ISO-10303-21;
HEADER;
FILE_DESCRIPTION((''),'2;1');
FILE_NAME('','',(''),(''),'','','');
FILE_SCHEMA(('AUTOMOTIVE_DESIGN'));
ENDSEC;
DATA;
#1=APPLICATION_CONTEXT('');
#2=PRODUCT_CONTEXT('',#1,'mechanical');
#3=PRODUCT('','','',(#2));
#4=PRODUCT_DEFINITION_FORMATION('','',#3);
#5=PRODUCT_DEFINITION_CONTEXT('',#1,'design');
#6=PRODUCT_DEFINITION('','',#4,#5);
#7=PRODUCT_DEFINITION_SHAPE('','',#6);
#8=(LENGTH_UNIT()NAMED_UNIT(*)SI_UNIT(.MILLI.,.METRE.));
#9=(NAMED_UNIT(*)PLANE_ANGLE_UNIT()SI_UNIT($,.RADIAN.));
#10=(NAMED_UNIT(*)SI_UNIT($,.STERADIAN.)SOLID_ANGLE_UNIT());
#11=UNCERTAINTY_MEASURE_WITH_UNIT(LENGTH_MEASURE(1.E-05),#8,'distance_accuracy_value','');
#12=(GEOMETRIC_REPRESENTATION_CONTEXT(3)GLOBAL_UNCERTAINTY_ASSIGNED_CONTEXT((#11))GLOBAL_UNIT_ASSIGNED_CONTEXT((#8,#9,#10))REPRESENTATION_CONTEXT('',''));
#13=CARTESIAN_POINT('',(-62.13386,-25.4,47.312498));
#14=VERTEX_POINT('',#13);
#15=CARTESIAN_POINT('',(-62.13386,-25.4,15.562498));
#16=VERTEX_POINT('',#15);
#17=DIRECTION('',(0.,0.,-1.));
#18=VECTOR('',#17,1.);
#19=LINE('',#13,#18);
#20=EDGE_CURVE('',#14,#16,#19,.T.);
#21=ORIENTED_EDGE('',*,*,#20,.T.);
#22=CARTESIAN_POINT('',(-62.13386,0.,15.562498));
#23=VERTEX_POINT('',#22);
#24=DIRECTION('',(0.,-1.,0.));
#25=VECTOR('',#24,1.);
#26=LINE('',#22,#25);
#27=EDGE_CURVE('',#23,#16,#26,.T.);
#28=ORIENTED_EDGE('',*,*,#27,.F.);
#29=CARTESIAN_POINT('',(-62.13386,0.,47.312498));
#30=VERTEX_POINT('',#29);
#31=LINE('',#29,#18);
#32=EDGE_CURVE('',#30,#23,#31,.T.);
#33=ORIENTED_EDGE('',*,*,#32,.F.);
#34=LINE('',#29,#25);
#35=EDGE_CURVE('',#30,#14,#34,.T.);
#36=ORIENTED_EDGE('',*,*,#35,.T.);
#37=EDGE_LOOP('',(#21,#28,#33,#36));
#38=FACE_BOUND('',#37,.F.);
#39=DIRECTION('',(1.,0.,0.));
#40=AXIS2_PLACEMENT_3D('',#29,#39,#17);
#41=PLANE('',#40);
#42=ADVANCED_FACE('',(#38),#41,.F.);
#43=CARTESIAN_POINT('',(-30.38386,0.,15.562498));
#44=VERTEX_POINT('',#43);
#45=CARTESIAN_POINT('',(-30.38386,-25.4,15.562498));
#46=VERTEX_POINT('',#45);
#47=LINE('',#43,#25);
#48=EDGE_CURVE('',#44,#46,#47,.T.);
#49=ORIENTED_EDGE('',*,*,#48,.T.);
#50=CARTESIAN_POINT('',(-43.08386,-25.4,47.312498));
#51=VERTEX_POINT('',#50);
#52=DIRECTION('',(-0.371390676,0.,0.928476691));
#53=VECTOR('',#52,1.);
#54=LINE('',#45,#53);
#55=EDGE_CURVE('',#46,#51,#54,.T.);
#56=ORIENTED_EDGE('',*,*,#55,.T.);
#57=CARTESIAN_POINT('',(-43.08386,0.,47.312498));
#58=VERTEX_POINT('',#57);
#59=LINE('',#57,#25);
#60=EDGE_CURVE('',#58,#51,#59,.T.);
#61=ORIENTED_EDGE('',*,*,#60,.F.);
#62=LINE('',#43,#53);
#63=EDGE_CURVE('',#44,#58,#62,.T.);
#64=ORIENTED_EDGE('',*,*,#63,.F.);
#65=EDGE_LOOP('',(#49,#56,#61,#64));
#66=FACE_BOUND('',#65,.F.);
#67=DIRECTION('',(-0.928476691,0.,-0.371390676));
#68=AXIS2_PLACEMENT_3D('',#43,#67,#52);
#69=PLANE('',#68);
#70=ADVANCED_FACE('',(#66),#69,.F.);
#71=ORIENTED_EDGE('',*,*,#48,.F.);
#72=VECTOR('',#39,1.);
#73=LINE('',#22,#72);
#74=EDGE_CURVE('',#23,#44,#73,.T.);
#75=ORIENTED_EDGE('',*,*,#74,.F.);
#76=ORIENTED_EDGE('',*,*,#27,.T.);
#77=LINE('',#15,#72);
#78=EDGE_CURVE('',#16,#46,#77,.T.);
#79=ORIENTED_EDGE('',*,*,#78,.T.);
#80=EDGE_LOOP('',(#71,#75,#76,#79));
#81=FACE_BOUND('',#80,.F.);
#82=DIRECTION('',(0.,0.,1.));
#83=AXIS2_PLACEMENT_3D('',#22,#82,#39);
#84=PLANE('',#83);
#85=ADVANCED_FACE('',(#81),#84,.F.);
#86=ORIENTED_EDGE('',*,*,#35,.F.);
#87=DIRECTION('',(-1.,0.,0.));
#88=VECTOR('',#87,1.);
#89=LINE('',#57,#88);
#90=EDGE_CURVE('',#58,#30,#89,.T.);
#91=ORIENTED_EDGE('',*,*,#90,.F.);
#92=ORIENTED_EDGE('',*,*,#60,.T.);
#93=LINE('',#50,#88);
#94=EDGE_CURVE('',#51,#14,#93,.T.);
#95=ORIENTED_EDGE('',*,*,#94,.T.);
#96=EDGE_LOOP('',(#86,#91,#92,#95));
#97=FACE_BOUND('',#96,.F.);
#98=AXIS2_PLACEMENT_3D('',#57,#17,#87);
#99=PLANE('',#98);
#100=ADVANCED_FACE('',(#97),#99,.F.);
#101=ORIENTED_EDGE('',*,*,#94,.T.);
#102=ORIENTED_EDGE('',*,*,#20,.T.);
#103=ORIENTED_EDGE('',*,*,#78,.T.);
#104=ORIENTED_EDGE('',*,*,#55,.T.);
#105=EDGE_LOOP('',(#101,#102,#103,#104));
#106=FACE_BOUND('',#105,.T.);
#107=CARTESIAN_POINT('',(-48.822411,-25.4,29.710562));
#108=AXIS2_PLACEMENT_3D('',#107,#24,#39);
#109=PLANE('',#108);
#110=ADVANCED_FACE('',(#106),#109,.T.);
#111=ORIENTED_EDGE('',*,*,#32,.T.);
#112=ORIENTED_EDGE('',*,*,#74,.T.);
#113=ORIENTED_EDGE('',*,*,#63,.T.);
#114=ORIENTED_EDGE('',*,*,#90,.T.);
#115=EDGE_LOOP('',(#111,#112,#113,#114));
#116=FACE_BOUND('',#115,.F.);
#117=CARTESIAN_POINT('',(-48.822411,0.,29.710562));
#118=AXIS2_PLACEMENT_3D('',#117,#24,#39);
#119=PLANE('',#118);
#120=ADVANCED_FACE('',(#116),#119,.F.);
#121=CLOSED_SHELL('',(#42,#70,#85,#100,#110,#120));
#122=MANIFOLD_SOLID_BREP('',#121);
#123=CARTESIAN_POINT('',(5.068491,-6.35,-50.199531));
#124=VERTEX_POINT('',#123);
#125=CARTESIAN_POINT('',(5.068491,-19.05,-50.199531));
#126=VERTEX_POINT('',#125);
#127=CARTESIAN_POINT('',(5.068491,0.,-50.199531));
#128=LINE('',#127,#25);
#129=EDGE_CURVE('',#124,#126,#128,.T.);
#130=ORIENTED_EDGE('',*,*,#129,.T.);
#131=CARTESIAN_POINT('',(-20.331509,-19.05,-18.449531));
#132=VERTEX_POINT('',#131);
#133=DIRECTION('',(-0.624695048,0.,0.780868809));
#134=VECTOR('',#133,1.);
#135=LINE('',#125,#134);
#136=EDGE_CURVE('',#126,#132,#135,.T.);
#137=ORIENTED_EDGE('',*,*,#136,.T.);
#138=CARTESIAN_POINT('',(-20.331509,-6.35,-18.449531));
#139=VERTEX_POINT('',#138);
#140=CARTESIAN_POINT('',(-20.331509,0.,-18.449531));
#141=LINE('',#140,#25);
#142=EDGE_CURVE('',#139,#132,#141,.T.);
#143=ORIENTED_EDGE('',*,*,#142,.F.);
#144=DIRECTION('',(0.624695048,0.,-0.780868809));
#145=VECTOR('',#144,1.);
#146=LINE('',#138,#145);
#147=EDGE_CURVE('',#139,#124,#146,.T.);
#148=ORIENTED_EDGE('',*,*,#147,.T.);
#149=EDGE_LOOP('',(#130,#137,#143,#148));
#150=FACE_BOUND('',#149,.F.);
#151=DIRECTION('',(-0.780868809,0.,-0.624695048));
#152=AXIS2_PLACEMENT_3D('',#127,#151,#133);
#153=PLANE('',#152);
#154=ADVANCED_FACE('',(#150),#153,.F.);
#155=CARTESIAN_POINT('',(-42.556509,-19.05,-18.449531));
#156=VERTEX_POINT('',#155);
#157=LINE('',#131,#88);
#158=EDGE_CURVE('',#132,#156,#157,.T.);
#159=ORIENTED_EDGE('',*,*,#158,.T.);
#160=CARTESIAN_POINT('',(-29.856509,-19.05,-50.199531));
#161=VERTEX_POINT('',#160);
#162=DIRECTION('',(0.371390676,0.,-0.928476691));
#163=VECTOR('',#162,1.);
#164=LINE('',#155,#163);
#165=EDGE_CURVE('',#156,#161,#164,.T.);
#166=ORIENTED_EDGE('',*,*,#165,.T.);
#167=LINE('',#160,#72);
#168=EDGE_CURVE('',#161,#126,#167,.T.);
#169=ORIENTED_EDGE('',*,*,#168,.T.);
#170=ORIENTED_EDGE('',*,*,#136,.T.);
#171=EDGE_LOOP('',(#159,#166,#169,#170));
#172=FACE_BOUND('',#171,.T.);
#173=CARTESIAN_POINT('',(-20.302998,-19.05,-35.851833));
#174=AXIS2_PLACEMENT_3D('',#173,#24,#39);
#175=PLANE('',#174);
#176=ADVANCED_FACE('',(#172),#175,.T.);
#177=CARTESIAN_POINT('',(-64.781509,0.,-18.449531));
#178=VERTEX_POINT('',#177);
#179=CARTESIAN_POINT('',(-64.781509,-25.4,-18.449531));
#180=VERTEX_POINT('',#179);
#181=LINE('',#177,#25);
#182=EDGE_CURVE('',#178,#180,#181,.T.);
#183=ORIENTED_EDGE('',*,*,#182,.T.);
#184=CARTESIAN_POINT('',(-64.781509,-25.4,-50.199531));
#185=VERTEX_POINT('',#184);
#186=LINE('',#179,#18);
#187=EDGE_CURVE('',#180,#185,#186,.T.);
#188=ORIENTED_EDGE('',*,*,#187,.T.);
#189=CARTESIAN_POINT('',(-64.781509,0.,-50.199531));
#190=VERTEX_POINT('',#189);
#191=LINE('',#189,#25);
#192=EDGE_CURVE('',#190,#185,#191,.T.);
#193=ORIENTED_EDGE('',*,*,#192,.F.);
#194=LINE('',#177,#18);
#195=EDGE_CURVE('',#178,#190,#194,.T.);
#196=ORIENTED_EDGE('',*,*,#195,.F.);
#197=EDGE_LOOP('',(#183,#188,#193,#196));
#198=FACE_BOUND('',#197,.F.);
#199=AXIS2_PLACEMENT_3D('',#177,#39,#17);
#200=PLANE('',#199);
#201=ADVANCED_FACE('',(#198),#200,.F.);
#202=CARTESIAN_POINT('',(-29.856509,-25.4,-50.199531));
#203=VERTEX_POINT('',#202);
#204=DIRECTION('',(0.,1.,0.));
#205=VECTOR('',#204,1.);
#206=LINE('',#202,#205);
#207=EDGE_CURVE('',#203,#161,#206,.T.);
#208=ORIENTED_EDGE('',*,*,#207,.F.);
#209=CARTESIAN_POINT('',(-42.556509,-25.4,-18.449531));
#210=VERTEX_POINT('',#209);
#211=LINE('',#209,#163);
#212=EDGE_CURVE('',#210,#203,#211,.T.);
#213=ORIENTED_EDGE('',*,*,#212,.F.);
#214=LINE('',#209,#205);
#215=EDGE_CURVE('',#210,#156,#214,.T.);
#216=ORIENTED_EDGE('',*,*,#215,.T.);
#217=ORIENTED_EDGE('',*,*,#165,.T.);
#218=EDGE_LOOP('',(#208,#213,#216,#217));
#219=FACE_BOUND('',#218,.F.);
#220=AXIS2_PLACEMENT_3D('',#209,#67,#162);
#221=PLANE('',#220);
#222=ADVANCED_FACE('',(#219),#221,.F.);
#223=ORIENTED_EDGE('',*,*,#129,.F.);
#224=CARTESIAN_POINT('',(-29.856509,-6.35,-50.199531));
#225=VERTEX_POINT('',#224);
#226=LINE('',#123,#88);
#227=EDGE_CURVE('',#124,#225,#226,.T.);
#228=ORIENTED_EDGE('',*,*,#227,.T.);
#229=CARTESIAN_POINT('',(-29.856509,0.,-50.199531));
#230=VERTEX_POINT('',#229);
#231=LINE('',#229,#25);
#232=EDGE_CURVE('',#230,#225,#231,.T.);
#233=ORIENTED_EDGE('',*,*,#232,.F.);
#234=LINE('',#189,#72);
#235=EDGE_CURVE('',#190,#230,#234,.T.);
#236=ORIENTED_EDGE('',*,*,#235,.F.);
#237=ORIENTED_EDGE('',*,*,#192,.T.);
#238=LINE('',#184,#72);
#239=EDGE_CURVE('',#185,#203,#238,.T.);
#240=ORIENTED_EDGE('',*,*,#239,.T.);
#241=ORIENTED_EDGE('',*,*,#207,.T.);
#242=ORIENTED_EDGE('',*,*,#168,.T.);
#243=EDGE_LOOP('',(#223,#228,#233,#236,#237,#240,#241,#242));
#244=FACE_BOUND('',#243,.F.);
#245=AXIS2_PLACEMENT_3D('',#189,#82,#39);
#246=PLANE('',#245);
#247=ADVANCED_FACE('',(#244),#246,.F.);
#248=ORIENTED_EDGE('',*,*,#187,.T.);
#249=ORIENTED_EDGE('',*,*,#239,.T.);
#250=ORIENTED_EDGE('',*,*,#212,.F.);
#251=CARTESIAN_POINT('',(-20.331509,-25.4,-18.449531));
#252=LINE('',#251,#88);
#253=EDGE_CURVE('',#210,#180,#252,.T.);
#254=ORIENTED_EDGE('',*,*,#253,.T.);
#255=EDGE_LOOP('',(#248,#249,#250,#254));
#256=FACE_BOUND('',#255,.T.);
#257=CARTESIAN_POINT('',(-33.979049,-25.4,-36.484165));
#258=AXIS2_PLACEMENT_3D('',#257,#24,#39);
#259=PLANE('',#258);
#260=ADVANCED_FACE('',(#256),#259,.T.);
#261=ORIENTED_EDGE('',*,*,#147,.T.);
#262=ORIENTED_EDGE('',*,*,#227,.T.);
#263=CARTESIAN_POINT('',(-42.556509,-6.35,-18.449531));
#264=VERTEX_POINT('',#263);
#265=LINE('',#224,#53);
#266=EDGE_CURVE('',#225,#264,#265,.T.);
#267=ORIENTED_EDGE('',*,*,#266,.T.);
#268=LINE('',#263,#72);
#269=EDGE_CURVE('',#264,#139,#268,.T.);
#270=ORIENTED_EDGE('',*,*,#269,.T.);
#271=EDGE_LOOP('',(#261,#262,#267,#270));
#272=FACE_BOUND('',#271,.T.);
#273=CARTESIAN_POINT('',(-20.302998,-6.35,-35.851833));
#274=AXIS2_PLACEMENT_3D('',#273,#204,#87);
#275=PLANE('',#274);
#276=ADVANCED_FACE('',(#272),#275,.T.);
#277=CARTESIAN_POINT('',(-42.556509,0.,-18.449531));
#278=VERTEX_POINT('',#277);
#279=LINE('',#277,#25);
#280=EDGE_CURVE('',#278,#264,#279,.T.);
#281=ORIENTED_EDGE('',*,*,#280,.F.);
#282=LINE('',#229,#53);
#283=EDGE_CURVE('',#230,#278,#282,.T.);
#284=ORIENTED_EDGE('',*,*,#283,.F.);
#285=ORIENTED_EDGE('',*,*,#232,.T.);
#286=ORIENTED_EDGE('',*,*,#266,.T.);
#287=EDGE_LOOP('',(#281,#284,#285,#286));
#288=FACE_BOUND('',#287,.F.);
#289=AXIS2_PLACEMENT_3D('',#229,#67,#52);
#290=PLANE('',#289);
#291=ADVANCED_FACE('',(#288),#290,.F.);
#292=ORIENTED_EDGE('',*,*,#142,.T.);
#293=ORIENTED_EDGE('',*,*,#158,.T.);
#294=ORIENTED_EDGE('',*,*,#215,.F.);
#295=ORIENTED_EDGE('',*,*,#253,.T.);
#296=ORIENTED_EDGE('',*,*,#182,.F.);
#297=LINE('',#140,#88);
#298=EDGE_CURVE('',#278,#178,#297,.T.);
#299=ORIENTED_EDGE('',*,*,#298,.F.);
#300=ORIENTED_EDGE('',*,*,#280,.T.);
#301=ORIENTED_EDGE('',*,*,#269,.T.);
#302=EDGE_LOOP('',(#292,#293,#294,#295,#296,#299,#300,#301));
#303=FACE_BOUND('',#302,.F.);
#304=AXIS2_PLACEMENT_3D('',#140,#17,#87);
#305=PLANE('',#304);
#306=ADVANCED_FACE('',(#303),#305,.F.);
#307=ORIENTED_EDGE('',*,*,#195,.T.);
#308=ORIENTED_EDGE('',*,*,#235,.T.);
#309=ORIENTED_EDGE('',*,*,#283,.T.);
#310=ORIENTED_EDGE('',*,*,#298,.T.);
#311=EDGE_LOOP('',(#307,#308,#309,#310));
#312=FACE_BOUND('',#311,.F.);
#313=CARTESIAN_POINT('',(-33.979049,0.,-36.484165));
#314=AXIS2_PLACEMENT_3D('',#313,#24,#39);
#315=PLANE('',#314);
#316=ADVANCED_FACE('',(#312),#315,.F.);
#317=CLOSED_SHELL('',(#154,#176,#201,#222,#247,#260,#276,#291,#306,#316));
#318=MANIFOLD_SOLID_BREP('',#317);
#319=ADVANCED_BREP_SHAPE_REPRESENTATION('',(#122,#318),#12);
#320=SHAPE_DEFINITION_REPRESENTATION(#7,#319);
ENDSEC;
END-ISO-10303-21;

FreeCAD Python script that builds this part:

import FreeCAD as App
import Part
import Sketcher
Q = App.Units.Quantity

doc = App.newDocument("Part")
body = doc.addObject("PartDesign::Body", "Body")

# Sketch on XZ plane
sketch1 = body.newObject("Sketcher::SketchObject", "Sketch")
sketch1.AttachmentSupport = (doc.getObject("XZ_Plane"), [""])
sketch1.MapMode = "FlatFace"
sketch1.addGeometry([
    Part.LineSegment(App.Vector(-43.08386, 47.312498, 0), App.Vector(-62.13386, 47.312498, 0)),
    Part.LineSegment(App.Vector(-62.13386, 47.312498, 0), App.Vector(-62.13386, 15.562498, 0)),
    Part.LineSegment(App.Vector(-62.13386, 15.562498, 0), App.Vector(-30.38386, 15.562498, 0)),
    Part.LineSegment(App.Vector(-30.38386, 15.562498, 0), App.Vector(-43.08386, 47.312498, 0)),
], False)
sketch1.addConstraint([
    Sketcher.Constraint("Coincident", 0, 2, 1, 1),
    Sketcher.Constraint("Coincident", 1, 2, 2, 1),
    Sketcher.Constraint("Coincident", 2, 2, 3, 1),
    Sketcher.Constraint("Coincident", 3, 2, 0, 1),
    Sketcher.Constraint("Horizontal", 0),
    Sketcher.Constraint("Vertical", 1),
    Sketcher.Constraint("Horizontal", 2),
    Sketcher.Constraint("Equal", 2, 1),
    Sketcher.Constraint("DistanceX", 0, 2, 0, 1, Q("0.75 in")),
    Sketcher.Constraint("DistanceX", 2, 1, 2, 2, Q("1.25 in")),
    Sketcher.Constraint("DistanceX", 0, 2, -1, 1, 62.13386),
    Sketcher.Constraint("DistanceY", -1, 1, 0, 2, 47.312498),
])
pad1 = body.newObject("PartDesign::Pad", "Pad")
pad1.Profile = sketch1
pad1.Length = Q("1 in")
body2 = doc.addObject("PartDesign::Body", "Body001")

# Sketch on XZ plane
sketch2 = body2.newObject("Sketcher::SketchObject", "Sketch001")
sketch2.AttachmentSupport = (doc.getObject("XZ_Plane001"), [""])
sketch2.MapMode = "FlatFace"
sketch2.addGeometry([
    Part.LineSegment(App.Vector(-20.331509, -18.449531, 0), App.Vector(-64.781509, -18.449531, 0)),
    Part.LineSegment(App.Vector(-64.781509, -18.449531, 0), App.Vector(-64.781509, -50.199531, 0)),
    Part.LineSegment(App.Vector(-64.781509, -50.199531, 0), App.Vector(5.068491, -50.199531, 0)),
    Part.LineSegment(App.Vector(5.068491, -50.199531, 0), App.Vector(-20.331509, -18.449531, 0)),
], False)
sketch2.addConstraint([
    Sketcher.Constraint("Coincident", 0, 2, 1, 1),
    Sketcher.Constraint("Coincident", 1, 2, 2, 1),
    Sketcher.Constraint("Coincident", 2, 2, 3, 1),
    Sketcher.Constraint("Coincident", 3, 2, 0, 1),
    Sketcher.Constraint("Horizontal", 0),
    Sketcher.Constraint("Vertical", 1),
    Sketcher.Constraint("Horizontal", 2),
    Sketcher.Constraint("DistanceX", 3, 2, 2, 2, Q("1 in")),
    Sketcher.Constraint("DistanceX", 0, 2, 0, 1, Q("1.75 in")),
    Sketcher.Constraint("DistanceY", 1, 2, 1, 1, Q("1.25 in")),
    Sketcher.Constraint("DistanceX", 0, 2, -1, 1, 64.781509),
    Sketcher.Constraint("DistanceY", 0, 2, -1, 1, 18.449531),
])
pad2 = body2.newObject("PartDesign::Pad", "Pad001")
pad2.Profile = sketch2
pad2.Length = Q("1 in")

# Sketch on XZ plane
sketch3 = body2.newObject("Sketcher::SketchObject", "Sketch002")
sketch3.AttachmentSupport = (doc.getObject("XZ_Plane001"), [""])
sketch3.MapMode = "FlatFace"
sketch3.AttachmentOffset = App.Placement(App.Vector(0, 0, 1 * 25.4), App.Rotation())
sketch3.addGeometry([
    Part.LineSegment(App.Vector(-20.331509, -18.449531, 0), App.Vector(-42.556509, -18.449531, 0)),
    Part.LineSegment(App.Vector(-42.556509, -18.449531, 0), App.Vector(-29.856509, -50.199531, 0)),
    Part.LineSegment(App.Vector(-29.856509, -50.199531, 0), App.Vector(5.068491, -50.199531, 0)),
    Part.LineSegment(App.Vector(5.068491, -50.199531, 0), App.Vector(-20.331509, -18.449531, 0)),
], False)
sketch3.addConstraint([
    Sketcher.Constraint("Coincident", 0, 2, 1, 1),
    Sketcher.Constraint("Coincident", 1, 2, 2, 1),
    Sketcher.Constraint("Coincident", 2, 2, 3, 1),
    Sketcher.Constraint("Coincident", 3, 2, 0, 1),
    Sketcher.Constraint("Horizontal", 0),
    Sketcher.Constraint("Horizontal", 2),
    Sketcher.Constraint("DistanceX", 3, 2, 2, 2, Q("1 in")),
    Sketcher.Constraint("DistanceX", 0, 2, 1, 2, Q("0.5 in")),
    Sketcher.Constraint("DistanceX", 0, 2, 0, 1, Q("0.875 in")),
    Sketcher.Constraint("DistanceY", 1, 2, 0, 2, Q("1.25 in")),
    Sketcher.Constraint("DistanceX", 0, 2, -1, 1, 42.556509),
    Sketcher.Constraint("DistanceY", 0, 2, -1, 1, 18.449531),
])
pocket1 = body2.newObject("PartDesign::Pocket", "Pocket")
pocket1.Profile = sketch3
pocket1.Length = Q("0.25 in")

# Sketch on XZ plane
sketch4 = body2.newObject("Sketcher::SketchObject", "Sketch003")
sketch4.AttachmentSupport = (doc.getObject("XZ_Plane001"), [""])
sketch4.MapMode = "FlatFace"
sketch4.addGeometry([
    Part.LineSegment(App.Vector(-29.856509, -50.199531, 0), App.Vector(-42.556509, -18.449531, 0)),
    Part.LineSegment(App.Vector(-42.556509, -18.449531, 0), App.Vector(-20.331509, -18.449531, 0)),
    Part.LineSegment(App.Vector(-20.331509, -18.449531, 0), App.Vector(5.068491, -50.199531, 0)),
    Part.LineSegment(App.Vector(5.068491, -50.199531, 0), App.Vector(-29.856509, -50.199531, 0)),
], False)
sketch4.addConstraint([
    Sketcher.Constraint("Coincident", 0, 2, 1, 1),
    Sketcher.Constraint("Coincident", 1, 2, 2, 1),
    Sketcher.Constraint("Coincident", 2, 2, 3, 1),
    Sketcher.Constraint("Coincident", 3, 2, 0, 1),
    Sketcher.Constraint("Horizontal", 1),
    Sketcher.Constraint("Horizontal", 3),
    Sketcher.Constraint("DistanceX", 1, 2, 2, 2, Q("1 in")),
    Sketcher.Constraint("DistanceX", 0, 2, 3, 2, Q("0.5 in")),
    Sketcher.Constraint("DistanceX", 1, 1, 1, 2, Q("0.875 in")),
    Sketcher.Constraint("DistanceY", 2, 2, 1, 2, Q("1.25 in")),
    Sketcher.Constraint("DistanceX", 0, 2, -1, 1, 42.556509),
    Sketcher.Constraint("DistanceY", 0, 2, -1, 1, 18.449531),
])
pocket2 = body2.newObject("PartDesign::Pocket", "Pocket001")
pocket2.Profile = sketch4
pocket2.Length = Q("0.25 in")
pocket2.Reversed = True

doc.recompute()
